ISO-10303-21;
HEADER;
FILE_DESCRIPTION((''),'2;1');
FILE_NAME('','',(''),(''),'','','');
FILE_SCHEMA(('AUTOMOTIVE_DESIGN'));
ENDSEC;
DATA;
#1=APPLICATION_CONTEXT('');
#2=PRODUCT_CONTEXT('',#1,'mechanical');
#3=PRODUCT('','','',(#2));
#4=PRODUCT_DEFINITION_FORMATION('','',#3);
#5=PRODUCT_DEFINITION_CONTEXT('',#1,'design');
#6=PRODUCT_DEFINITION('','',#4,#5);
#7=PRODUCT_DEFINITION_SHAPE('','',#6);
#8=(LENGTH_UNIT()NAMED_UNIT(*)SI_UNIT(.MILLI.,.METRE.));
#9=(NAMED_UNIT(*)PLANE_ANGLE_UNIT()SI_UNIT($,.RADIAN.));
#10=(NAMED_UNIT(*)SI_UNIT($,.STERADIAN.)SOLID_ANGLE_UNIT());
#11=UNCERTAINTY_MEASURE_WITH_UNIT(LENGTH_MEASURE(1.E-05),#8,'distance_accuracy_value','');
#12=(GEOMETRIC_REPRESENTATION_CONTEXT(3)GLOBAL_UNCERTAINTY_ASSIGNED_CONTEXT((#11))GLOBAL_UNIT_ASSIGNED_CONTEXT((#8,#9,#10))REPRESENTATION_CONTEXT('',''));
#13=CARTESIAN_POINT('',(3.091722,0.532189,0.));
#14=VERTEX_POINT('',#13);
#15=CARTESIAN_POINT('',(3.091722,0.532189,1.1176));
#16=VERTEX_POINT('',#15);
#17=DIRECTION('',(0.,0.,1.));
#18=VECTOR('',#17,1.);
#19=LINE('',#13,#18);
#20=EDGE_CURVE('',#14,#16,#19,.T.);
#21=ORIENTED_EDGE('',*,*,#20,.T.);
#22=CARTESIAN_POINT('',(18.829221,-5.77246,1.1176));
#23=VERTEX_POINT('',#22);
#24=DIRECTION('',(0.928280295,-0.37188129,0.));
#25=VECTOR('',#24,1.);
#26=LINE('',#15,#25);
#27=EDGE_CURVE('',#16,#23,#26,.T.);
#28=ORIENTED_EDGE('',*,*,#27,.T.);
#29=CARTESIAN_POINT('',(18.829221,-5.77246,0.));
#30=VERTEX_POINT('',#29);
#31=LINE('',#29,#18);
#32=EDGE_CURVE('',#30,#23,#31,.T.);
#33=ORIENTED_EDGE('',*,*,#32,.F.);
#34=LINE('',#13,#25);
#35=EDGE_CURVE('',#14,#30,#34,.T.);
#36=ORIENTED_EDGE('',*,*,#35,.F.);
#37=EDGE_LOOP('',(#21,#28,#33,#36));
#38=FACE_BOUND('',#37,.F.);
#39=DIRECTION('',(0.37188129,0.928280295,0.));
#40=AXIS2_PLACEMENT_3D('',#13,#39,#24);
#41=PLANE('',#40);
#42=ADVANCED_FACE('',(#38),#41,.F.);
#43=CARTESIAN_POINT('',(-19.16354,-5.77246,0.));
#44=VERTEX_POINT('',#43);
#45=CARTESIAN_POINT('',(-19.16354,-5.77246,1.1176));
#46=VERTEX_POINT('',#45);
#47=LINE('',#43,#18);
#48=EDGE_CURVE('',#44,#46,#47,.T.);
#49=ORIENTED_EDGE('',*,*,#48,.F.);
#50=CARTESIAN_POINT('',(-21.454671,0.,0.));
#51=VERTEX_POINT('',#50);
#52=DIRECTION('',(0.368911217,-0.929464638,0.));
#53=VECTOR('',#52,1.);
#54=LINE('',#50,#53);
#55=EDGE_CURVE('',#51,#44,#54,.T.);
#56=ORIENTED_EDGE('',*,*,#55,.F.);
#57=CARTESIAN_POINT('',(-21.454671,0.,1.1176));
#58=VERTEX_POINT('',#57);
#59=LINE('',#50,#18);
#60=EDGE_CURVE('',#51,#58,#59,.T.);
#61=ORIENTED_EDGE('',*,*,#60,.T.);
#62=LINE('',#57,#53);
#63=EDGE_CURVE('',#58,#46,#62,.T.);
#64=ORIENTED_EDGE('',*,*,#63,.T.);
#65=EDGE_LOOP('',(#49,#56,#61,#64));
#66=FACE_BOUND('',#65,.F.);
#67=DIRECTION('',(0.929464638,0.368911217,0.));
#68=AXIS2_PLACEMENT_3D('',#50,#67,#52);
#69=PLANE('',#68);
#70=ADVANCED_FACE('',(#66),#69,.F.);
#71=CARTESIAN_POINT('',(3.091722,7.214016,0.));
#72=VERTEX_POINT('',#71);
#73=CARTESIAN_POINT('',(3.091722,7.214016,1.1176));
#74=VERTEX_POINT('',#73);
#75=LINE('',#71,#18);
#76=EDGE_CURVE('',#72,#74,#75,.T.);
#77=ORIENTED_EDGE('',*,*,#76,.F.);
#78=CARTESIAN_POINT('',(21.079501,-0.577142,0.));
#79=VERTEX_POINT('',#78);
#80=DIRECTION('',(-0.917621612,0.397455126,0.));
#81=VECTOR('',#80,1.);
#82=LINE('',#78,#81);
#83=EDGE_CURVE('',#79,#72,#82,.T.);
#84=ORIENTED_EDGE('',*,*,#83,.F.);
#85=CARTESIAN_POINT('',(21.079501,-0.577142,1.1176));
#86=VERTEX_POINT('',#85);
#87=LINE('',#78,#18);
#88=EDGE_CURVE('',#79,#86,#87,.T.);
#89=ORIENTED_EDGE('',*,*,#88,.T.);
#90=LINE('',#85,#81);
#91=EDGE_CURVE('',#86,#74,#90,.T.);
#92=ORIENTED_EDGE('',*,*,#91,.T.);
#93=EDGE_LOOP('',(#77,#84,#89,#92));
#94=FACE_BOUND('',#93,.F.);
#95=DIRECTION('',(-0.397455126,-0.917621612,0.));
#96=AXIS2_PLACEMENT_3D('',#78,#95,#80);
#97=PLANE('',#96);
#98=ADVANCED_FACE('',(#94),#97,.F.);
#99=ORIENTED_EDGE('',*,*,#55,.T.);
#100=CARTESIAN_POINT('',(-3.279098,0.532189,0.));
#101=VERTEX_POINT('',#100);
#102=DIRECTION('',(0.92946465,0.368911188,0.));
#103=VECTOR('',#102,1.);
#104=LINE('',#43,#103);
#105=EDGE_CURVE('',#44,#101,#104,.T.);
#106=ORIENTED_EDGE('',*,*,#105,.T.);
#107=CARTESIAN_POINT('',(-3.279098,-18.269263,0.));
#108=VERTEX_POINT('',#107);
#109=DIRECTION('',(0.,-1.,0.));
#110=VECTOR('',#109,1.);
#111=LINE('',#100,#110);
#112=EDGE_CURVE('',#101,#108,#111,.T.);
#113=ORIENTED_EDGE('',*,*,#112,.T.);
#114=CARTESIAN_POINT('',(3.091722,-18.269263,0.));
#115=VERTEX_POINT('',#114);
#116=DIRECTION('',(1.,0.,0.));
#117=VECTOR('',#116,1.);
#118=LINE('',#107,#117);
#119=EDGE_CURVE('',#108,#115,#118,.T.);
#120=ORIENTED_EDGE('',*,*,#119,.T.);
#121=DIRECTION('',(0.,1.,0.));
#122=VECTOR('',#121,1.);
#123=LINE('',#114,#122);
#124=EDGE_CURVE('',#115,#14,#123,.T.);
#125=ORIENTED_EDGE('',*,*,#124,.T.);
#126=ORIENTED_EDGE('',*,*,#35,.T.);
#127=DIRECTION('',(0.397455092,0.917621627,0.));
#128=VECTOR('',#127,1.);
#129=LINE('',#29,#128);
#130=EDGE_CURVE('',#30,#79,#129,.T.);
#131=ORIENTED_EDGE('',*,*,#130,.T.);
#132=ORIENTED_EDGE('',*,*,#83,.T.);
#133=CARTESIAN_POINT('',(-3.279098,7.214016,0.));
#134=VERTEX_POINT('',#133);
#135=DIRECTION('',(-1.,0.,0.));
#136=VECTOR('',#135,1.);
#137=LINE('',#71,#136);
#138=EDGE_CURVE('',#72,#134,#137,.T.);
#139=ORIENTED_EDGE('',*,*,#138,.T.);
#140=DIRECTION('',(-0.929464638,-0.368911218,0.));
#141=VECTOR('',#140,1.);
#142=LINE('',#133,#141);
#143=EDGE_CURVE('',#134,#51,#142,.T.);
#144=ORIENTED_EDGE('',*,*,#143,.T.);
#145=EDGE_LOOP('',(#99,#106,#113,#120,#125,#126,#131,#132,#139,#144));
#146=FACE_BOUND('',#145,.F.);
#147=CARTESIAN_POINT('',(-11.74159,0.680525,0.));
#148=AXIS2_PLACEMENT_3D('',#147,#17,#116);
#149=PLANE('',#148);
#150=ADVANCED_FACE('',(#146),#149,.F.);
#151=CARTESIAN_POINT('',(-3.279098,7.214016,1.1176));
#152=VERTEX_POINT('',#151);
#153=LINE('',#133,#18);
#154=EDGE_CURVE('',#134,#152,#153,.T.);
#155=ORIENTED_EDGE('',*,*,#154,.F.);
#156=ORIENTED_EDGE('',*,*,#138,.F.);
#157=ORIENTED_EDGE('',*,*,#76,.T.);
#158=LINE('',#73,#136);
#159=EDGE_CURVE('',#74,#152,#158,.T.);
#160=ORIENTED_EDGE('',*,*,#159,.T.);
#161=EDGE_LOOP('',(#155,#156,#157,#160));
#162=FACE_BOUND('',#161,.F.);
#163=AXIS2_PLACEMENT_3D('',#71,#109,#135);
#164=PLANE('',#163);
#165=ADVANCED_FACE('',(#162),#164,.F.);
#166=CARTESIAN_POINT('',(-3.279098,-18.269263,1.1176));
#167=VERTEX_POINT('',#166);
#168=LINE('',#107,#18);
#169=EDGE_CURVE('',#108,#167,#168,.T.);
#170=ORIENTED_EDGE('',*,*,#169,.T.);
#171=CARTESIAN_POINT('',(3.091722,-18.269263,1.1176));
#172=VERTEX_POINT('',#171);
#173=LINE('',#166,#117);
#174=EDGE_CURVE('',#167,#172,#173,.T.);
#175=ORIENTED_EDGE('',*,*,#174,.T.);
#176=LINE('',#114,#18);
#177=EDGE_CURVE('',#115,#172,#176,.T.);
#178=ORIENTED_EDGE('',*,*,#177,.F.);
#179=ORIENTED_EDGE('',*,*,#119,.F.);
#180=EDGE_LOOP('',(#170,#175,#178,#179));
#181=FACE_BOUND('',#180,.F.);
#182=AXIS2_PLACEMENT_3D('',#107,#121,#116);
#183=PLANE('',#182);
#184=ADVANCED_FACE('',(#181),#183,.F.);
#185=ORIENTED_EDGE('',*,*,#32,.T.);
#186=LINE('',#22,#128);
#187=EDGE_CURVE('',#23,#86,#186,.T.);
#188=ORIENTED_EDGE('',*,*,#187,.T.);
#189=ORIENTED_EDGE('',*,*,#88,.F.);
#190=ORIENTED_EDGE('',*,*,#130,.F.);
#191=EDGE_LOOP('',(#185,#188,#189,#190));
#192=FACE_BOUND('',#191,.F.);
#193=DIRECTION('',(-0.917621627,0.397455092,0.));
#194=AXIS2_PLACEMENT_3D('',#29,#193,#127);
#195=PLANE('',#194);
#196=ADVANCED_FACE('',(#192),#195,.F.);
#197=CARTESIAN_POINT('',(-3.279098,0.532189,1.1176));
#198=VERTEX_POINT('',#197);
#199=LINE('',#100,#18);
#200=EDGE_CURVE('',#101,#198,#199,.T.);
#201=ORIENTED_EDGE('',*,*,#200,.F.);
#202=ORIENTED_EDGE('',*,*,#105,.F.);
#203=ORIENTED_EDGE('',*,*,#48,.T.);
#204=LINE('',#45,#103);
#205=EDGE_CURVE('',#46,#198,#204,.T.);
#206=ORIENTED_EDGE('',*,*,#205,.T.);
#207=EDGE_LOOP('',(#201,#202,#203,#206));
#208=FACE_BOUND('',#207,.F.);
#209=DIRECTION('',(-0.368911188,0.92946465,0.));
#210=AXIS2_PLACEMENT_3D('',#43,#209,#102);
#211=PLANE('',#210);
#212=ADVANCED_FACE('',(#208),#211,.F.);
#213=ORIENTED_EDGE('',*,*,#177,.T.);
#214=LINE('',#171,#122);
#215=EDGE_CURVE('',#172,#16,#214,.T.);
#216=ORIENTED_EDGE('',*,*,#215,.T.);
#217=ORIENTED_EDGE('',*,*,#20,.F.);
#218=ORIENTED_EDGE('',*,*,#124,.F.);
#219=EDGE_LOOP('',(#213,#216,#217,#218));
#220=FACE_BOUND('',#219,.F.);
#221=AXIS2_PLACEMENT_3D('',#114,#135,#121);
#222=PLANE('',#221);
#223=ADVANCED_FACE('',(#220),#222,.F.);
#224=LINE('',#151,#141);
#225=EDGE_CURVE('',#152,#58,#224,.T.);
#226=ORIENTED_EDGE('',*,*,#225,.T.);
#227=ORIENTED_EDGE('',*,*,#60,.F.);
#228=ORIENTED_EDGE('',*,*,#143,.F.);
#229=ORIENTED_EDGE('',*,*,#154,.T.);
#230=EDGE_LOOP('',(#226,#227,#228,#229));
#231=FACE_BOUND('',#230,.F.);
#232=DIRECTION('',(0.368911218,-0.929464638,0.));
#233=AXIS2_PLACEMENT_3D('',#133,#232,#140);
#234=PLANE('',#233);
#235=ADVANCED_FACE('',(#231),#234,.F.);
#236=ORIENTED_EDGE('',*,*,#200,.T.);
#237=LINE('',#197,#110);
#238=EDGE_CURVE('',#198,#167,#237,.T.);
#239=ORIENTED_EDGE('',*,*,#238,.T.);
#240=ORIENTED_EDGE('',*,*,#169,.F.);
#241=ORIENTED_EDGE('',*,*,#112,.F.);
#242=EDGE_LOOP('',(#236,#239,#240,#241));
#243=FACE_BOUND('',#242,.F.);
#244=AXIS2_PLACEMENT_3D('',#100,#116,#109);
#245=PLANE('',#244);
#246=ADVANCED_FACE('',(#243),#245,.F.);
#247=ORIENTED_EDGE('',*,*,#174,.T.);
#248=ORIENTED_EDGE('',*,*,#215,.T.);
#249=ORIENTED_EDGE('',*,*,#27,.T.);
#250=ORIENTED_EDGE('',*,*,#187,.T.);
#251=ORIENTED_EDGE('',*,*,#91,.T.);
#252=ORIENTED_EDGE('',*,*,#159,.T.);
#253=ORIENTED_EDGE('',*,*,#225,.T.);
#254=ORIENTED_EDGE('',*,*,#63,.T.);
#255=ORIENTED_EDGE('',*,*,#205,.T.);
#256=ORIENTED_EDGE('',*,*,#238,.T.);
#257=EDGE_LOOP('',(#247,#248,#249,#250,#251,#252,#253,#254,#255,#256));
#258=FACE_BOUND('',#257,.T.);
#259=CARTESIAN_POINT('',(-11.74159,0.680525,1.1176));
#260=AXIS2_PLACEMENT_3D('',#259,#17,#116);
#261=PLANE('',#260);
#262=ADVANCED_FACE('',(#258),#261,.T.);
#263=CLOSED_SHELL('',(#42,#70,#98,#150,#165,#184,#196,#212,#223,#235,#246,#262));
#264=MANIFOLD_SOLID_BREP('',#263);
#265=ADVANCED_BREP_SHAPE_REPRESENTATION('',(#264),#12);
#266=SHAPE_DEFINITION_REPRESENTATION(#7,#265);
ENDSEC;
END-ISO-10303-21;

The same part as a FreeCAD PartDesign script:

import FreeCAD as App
import Part
import Sketcher
Q = App.Units.Quantity


def add_polygon(sketch, points):
    """Adds a closed chain of lines whose ends are joined by coincident constraints."""
    first, n = sketch.GeometryCount, len(points)
    for a, b in zip(points, points[1:] + points[:1]):
        sketch.addGeometry(Part.LineSegment(App.Vector(*a, 0), App.Vector(*b, 0)), False)
    for i in range(n):
        sketch.addConstraint(Sketcher.Constraint("Coincident", first + i, 2, first + (i + 1) % n, 1))

doc = App.newDocument("Part")
params = doc.addObject("Spreadsheet::Sheet", "Params")
for row, (alias, value) in enumerate([
    ("pad1_length", "0.044 in"),
], start=1):
    params.set(f"A{row}", alias)
    params.set(f"B{row}", "=" + value)
    params.setAlias(f"B{row}", alias)

body = doc.addObject("PartDesign::Body", "Body")

# Sketch on XY plane
sketch1 = body.newObject("Sketcher::SketchObject", "Sketch")
sketch1.AttachmentSupport = (doc.getObject("XY_Plane"), [""])
sketch1.MapMode = "FlatFace"
add_polygon(sketch1, [(-3.279098, 7.214016), (-21.454671, 0), (-19.16354, -5.77246), (-3.279098, 0.532189), (-3.279098, -18.269263), (3.091722, -18.269263), (3.091722, 0.532189), (18.829221, -5.77246), (21.079501, -0.577142), (3.091722, 7.214016)])  # lines 0-9
sketch1.addConstraint([
    Sketcher.Constraint("Vertical", 3),
    Sketcher.Constraint("Horizontal", 4),
    Sketcher.Constraint("Vertical", 5),
    Sketcher.Constraint("Horizontal", 9),
    Sketcher.Constraint("PointOnObject", 0, 2, -1),
    Sketcher.Constraint("DistanceY", 3, 2, 1, 2, Q("0.4920001 in")),
    Sketcher.Constraint("DistanceY", 4, 2, 6, 2, Q("0.4920001 in")),
    Sketcher.Constraint("DistanceX", 2, 2, 7, 2, Q("0.959 in")),
    Sketcher.Constraint("DistanceX", 4, 1, 4, 2, 6.37082),
    Sketcher.Constraint("DistanceX", 9, 2, 9, 1, 6.37082),
    Sketcher.Constraint("DistanceY", 3, 2, 3, 1, 18.801452),
    Sketcher.Constraint("DistanceY", 5, 1, 5, 2, 18.801452),
    Sketcher.Constraint("DistanceX", -1, 1, 7, 2, 21.079501),
    Sketcher.Constraint("DistanceX", 5, 2, 6, 2, 15.737499),
    Sketcher.Constraint("DistanceX", 8, 2, 6, 2, 15.737499),
    Sketcher.Constraint("Distance", 1, 6.210521),
    Sketcher.Constraint("Distance", 7, 5.661721),
    Sketcher.Constraint("Distance", 8, 19.60261),
    Sketcher.Constraint("DistanceX", 0, 2, -1, 1, 21.454671),
    Sketcher.Constraint("DistanceX", 1, 2, -1, 1, 19.16354),
])
pad1 = body.newObject("PartDesign::Pad", "Pad")
pad1.Profile = sketch1
pad1.setExpression("Length", "Params.pad1_length")

doc.recompute()
